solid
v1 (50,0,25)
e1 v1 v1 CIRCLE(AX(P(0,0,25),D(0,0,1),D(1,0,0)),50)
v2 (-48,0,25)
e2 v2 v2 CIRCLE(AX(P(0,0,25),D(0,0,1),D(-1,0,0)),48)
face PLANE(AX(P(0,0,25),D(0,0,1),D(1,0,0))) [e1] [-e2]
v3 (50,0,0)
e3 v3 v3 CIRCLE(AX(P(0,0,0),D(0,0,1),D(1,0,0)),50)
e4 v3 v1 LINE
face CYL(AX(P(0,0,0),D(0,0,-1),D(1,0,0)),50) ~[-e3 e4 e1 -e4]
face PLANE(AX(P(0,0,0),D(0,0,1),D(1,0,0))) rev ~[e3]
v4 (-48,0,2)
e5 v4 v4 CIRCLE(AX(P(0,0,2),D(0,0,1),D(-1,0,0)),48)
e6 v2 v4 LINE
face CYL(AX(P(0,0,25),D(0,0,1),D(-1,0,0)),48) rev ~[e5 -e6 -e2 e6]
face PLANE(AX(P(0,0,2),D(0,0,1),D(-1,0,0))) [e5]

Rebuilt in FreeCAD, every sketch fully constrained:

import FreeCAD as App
import Part
import Sketcher
from FreeCAD import Vector

doc = App.newDocument("Part")
body = doc.addObject("PartDesign::Body", "Body")

# Sketch on XY plane
sketch1 = body.newObject("Sketcher::SketchObject", "Sketch")
sketch1.AttachmentSupport = (doc.getObject("XY_Plane"), [""])
sketch1.MapMode = "FlatFace"
sketch1.addGeometry(Part.Circle(Vector(0, 0, 0), Vector(0, 0, 1), 50), False)
sketch1.addConstraint([
    Sketcher.Constraint("Coincident", 0, 3, -1, 1),
    Sketcher.Constraint("Diameter", 0, 100.0),
])
pad1 = body.newObject("PartDesign::Pad", "Pad")
pad1.Profile = sketch1
pad1.Length = 25

# Sketch on XY plane
sketch2 = body.newObject("Sketcher::SketchObject", "Sketch001")
sketch2.AttachmentSupport = (doc.getObject("XY_Plane"), [""])
sketch2.MapMode = "FlatFace"
sketch2.AttachmentOffset = App.Placement(Vector(0, 0, 25), App.Rotation())
sketch2.addGeometry(Part.Circle(Vector(0, 0, 0), Vector(0, 0, 1), 48), False)
sketch2.addConstraint([
    Sketcher.Constraint("Coincident", 0, 3, -1, 1),
    Sketcher.Constraint("Diameter", 0, 96.0),
])
pocket1 = body.newObject("PartDesign::Pocket", "Pocket")
pocket1.Profile = sketch2
pocket1.Length = 23

doc.recompute()
